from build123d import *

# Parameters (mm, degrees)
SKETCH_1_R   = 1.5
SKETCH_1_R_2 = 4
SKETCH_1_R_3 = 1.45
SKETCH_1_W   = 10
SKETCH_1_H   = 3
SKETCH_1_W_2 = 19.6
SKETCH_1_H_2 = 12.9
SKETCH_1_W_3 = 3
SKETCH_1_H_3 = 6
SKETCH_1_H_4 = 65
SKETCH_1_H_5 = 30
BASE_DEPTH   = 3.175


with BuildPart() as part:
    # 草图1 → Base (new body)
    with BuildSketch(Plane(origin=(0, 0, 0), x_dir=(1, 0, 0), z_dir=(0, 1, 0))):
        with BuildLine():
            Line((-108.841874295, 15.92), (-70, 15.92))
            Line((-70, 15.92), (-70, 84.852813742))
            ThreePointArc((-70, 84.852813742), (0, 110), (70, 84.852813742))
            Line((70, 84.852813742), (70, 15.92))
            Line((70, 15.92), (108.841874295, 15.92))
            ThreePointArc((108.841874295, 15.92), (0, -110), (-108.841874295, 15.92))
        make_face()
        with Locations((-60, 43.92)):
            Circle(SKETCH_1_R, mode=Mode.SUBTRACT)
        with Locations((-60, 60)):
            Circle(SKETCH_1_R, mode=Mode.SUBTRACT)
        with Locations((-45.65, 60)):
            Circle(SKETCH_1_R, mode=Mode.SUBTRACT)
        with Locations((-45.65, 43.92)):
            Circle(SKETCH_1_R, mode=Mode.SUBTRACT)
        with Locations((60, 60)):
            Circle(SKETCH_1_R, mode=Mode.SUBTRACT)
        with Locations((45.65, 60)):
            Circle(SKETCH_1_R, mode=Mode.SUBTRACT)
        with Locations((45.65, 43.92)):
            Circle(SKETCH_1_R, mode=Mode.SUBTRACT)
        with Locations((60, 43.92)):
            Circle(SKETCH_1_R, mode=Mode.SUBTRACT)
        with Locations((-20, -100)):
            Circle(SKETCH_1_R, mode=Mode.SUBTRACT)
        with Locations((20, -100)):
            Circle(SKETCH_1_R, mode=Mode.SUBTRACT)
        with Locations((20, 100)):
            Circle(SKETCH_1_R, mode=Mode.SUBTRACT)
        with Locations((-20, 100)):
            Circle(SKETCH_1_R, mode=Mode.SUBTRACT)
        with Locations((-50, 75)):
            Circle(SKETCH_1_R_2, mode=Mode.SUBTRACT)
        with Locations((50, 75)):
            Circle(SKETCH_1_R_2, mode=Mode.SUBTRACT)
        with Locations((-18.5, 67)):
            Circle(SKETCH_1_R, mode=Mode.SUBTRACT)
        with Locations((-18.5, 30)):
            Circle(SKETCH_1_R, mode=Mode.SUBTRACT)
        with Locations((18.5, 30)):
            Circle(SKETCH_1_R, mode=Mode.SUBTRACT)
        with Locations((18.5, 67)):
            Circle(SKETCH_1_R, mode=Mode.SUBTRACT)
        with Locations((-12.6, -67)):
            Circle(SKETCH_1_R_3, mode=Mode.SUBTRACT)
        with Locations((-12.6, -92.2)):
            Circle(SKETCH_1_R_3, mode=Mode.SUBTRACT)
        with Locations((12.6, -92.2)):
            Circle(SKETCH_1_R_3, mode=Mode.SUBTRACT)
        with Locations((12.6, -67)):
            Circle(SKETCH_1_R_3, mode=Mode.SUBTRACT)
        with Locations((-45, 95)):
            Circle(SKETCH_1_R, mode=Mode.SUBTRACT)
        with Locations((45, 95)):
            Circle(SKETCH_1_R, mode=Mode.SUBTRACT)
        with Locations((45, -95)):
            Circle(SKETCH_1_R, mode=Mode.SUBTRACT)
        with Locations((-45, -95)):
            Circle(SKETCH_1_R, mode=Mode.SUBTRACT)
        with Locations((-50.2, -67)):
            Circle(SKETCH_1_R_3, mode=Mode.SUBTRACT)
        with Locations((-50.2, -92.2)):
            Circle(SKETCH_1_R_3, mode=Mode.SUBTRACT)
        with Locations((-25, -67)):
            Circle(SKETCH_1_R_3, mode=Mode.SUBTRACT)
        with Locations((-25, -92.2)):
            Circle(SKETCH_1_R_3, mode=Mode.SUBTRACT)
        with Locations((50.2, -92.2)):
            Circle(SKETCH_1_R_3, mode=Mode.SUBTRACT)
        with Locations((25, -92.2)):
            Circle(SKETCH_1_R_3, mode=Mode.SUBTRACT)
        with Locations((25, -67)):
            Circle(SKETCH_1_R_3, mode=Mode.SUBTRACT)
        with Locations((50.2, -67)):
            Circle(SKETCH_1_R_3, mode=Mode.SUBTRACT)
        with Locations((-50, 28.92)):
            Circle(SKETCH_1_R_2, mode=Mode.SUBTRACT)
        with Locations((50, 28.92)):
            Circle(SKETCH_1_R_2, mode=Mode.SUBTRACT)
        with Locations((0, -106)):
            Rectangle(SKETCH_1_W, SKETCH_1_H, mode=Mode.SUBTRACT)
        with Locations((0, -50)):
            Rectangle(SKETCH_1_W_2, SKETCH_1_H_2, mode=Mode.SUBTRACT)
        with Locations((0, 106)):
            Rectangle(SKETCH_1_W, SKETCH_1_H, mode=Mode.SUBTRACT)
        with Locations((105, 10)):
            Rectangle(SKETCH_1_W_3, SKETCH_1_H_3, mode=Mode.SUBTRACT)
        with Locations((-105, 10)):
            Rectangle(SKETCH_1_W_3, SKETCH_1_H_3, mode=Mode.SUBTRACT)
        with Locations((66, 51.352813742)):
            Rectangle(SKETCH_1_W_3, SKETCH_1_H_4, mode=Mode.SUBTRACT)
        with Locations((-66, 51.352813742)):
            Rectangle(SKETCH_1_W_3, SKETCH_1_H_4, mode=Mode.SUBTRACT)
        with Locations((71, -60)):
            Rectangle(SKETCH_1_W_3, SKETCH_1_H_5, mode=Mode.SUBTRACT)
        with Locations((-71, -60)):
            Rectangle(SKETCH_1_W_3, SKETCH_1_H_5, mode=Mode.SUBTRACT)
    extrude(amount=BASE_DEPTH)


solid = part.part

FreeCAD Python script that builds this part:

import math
import FreeCAD as App
import Part
import Sketcher
from FreeCAD import Vector

doc = App.newDocument("Part")
body = doc.addObject("PartDesign::Body", "Body")

# Sketch on XZ plane
sketch1 = doc.addObject("Sketcher::SketchObject", "Sketch")
body.addObject(sketch1)
sketch1.AttachmentSupport = (doc.XZ_Plane, [""])
sketch1.MapMode = "FlatFace"
sketch1.addGeometry([
    Part.LineSegment(Vector(-70, -15.9, 0), Vector(-108.8, -15.9, 0)),  # 0
    Part.ArcOfCircle(Part.Circle(Vector(0, 0, 0), Vector(0, 0, 1), 110), math.radians(-8), math.radians(188)),  # 1
    Part.LineSegment(Vector(108.8, -15.9, 0), Vector(70, -15.9, 0)),  # 2
    Part.LineSegment(Vector(70, -15.9, 0), Vector(70, -84.9, 0)),  # 3
    Part.ArcOfCircle(Part.Circle(Vector(0, 0, 0), Vector(0, 0, 1), 110), math.radians(-130), math.radians(-50)),  # 4
    Part.LineSegment(Vector(-70, -84.9, 0), Vector(-70, -15.9, 0)),  # 5
    Part.LineSegment(Vector(69.5, 75, 0), Vector(69.5, 45, 0)),  # 6
    Part.LineSegment(Vector(69.5, 45, 0), Vector(72.5, 45, 0)),  # 7
    Part.LineSegment(Vector(72.5, 45, 0), Vector(72.5, 75, 0)),  # 8
    Part.LineSegment(Vector(72.5, 75, 0), Vector(69.5, 75, 0)),  # 9
    Part.Circle(Vector(45, 95, 0), Vector(0, 0, 1), 1.5),  # 10
    Part.Circle(Vector(50.2, 92.2, 0), Vector(0, 0, 1), 1.4),  # 11
    Part.Circle(Vector(20, 100, 0), Vector(0, 0, 1), 1.5),  # 12
    Part.Circle(Vector(25, 92.2, 0), Vector(0, 0, 1), 1.4),  # 13
    Part.Circle(Vector(12.6, 92.2, 0), Vector(0, 0, 1), 1.4),  # 14
    Part.Circle(Vector(50.2, 67, 0), Vector(0, 0, 1), 1.4),  # 15
    Part.Circle(Vector(25, 67, 0), Vector(0, 0, 1), 1.4),  # 16
    Part.Circle(Vector(12.6, 67, 0), Vector(0, 0, 1), 1.4),  # 17
    Part.LineSegment(Vector(-5, 107.5, 0), Vector(-5, 104.5, 0)),  # 18
    Part.LineSegment(Vector(-5, 104.5, 0), Vector(5, 104.5, 0)),  # 19
    Part.LineSegment(Vector(5, 104.5, 0), Vector(5, 107.5, 0)),  # 20
    Part.LineSegment(Vector(5, 107.5, 0), Vector(-5, 107.5, 0)),  # 21
    Part.Circle(Vector(-20, 100, 0), Vector(0, 0, 1), 1.5),  # 22
    Part.Circle(Vector(-12.6, 92.2, 0), Vector(0, 0, 1), 1.4),  # 23
    Part.Circle(Vector(-25, 92.2, 0), Vector(0, 0, 1), 1.4),  # 24
    Part.Circle(Vector(-45, 95, 0), Vector(0, 0, 1), 1.5),  # 25
    Part.Circle(Vector(-50.2, 92.2, 0), Vector(0, 0, 1), 1.4),  # 26
    Part.Circle(Vector(-12.6, 67, 0), Vector(0, 0, 1), 1.4),  # 27
    Part.Circle(Vector(-25, 67, 0), Vector(0, 0, 1), 1.4),  # 28
    Part.Circle(Vector(-50.2, 67, 0), Vector(0, 0, 1), 1.4),  # 29
    Part.LineSegment(Vector(-72.5, 75, 0), Vector(-72.5, 45, 0)),  # 30
    Part.LineSegment(Vector(-72.5, 45, 0), Vector(-69.5, 45, 0)),  # 31
    Part.LineSegment(Vector(-69.5, 45, 0), Vector(-69.5, 75, 0)),  # 32
    Part.LineSegment(Vector(-69.5, 75, 0), Vector(-72.5, 75, 0)),  # 33
    Part.LineSegment(Vector(-9.8, 56.5, 0), Vector(-9.8, 43.5, 0)),  # 34
    Part.LineSegment(Vector(-9.8, 43.5, 0), Vector(9.8, 43.5, 0)),  # 35
    Part.LineSegment(Vector(9.8, 43.5, 0), Vector(9.8, 56.5, 0)),  # 36
    Part.LineSegment(Vector(9.8, 56.5, 0), Vector(-9.8, 56.5, 0)),  # 37
    Part.LineSegment(Vector(103.5, -7, 0), Vector(103.5, -13, 0)),  # 38
    Part.LineSegment(Vector(103.5, -13, 0), Vector(106.5, -13, 0)),  # 39
    Part.LineSegment(Vector(106.5, -13, 0), Vector(106.5, -7, 0)),  # 40
    Part.LineSegment(Vector(106.5, -7, 0), Vector(103.5, -7, 0)),  # 41
    Part.Circle(Vector(60, -43.9, 0), Vector(0, 0, 1), 1.5),  # 42
    Part.LineSegment(Vector(64.5, -18.9, 0), Vector(64.5, -83.9, 0)),  # 43
    Part.LineSegment(Vector(64.5, -83.9, 0), Vector(67.5, -83.9, 0)),  # 44
    Part.LineSegment(Vector(67.5, -83.9, 0), Vector(67.5, -18.9, 0)),  # 45
    Part.LineSegment(Vector(67.5, -18.9, 0), Vector(64.5, -18.9, 0)),  # 46
    Part.Circle(Vector(50, -28.9, 0), Vector(0, 0, 1), 4),  # 47
    Part.Circle(Vector(45.6, -43.9, 0), Vector(0, 0, 1), 1.5),  # 48
    Part.Circle(Vector(18.5, -30, 0), Vector(0, 0, 1), 1.5),  # 49
    Part.Circle(Vector(60, -60, 0), Vector(0, 0, 1), 1.5),  # 50
    Part.Circle(Vector(45.6, -60, 0), Vector(0, 0, 1), 1.5),  # 51
    Part.Circle(Vector(50, -75, 0), Vector(0, 0, 1), 4),  # 52
    Part.Circle(Vector(18.5, -67, 0), Vector(0, 0, 1), 1.5),  # 53
    Part.Circle(Vector(45, -95, 0), Vector(0, 0, 1), 1.5),  # 54
    Part.Circle(Vector(20, -100, 0), Vector(0, 0, 1), 1.5),  # 55
    Part.Circle(Vector(-18.5, -30, 0), Vector(0, 0, 1), 1.5),  # 56
    Part.Circle(Vector(-50, -28.9, 0), Vector(0, 0, 1), 4),  # 57
    Part.Circle(Vector(-45.6, -43.9, 0), Vector(0, 0, 1), 1.5),  # 58
    Part.LineSegment(Vector(-106.5, -7, 0), Vector(-106.5, -13, 0)),  # 59
    Part.LineSegment(Vector(-106.5, -13, 0), Vector(-103.5, -13, 0)),  # 60
    Part.LineSegment(Vector(-103.5, -13, 0), Vector(-103.5, -7, 0)),  # 61
    Part.LineSegment(Vector(-103.5, -7, 0), Vector(-106.5, -7, 0)),  # 62
    Part.Circle(Vector(-60, -43.9, 0), Vector(0, 0, 1), 1.5),  # 63
    Part.LineSegment(Vector(-67.5, -18.9, 0), Vector(-67.5, -83.9, 0)),  # 64
    Part.LineSegment(Vector(-67.5, -83.9, 0), Vector(-64.5, -83.9, 0)),  # 65
    Part.LineSegment(Vector(-64.5, -83.9, 0), Vector(-64.5, -18.9, 0)),  # 66
    Part.LineSegment(Vector(-64.5, -18.9, 0), Vector(-67.5, -18.9, 0)),  # 67
    Part.Circle(Vector(-18.5, -67, 0), Vector(0, 0, 1), 1.5),  # 68
    Part.Circle(Vector(-45.6, -60, 0), Vector(0, 0, 1), 1.5),  # 69
    Part.Circle(Vector(-50, -75, 0), Vector(0, 0, 1), 4),  # 70
    Part.LineSegment(Vector(-5, -104.5, 0), Vector(-5, -107.5, 0)),  # 71
    Part.LineSegment(Vector(-5, -107.5, 0), Vector(5, -107.5, 0)),  # 72
    Part.LineSegment(Vector(5, -107.5, 0), Vector(5, -104.5, 0)),  # 73
    Part.LineSegment(Vector(5, -104.5, 0), Vector(-5, -104.5, 0)),  # 74
    Part.Circle(Vector(-20, -100, 0), Vector(0, 0, 1), 1.5),  # 75
    Part.Circle(Vector(-45, -95, 0), Vector(0, 0, 1), 1.5),  # 76
    Part.Circle(Vector(-60, -60, 0), Vector(0, 0, 1), 1.5),  # 77
], False)
sketch1.addConstraint([
    Sketcher.Constraint("Coincident", 0, 2, 1, 2),
    Sketcher.Constraint("Coincident", 1, 1, 2, 1),
    Sketcher.Constraint("Coincident", 2, 2, 3, 1),
    Sketcher.Constraint("Coincident", 3, 2, 4, 2),
    Sketcher.Constraint("Coincident", 4, 1, 5, 1),
    Sketcher.Constraint("Coincident", 5, 2, 0, 1),
    Sketcher.Constraint("Coincident", 6, 2, 7, 1),
    Sketcher.Constraint("Coincident", 7, 2, 8, 1),
    Sketcher.Constraint("Coincident", 8, 2, 9, 1),
    Sketcher.Constraint("Coincident", 9, 2, 6, 1),
    Sketcher.Constraint("Coincident", 18, 2, 19, 1),
    Sketcher.Constraint("Coincident", 19, 2, 20, 1),
    Sketcher.Constraint("Coincident", 20, 2, 21, 1),
    Sketcher.Constraint("Coincident", 21, 2, 18, 1),
    Sketcher.Constraint("Coincident", 30, 2, 31, 1),
    Sketcher.Constraint("Coincident", 31, 2, 32, 1),
    Sketcher.Constraint("Coincident", 32, 2, 33, 1),
    Sketcher.Constraint("Coincident", 33, 2, 30, 1),
    Sketcher.Constraint("Coincident", 34, 2, 35, 1),
    Sketcher.Constraint("Coincident", 35, 2, 36, 1),
    Sketcher.Constraint("Coincident", 36, 2, 37, 1),
    Sketcher.Constraint("Coincident", 37, 2, 34, 1),
    Sketcher.Constraint("Coincident", 38, 2, 39, 1),
    Sketcher.Constraint("Coincident", 39, 2, 40, 1),
    Sketcher.Constraint("Coincident", 40, 2, 41, 1),
    Sketcher.Constraint("Coincident", 41, 2, 38, 1),
    Sketcher.Constraint("Coincident", 43, 2, 44, 1),
    Sketcher.Constraint("Coincident", 44, 2, 45, 1),
    Sketcher.Constraint("Coincident", 45, 2, 46, 1),
    Sketcher.Constraint("Coincident", 46, 2, 43, 1),
    Sketcher.Constraint("Coincident", 59, 2, 60, 1),
    Sketcher.Constraint("Coincident", 60, 2, 61, 1),
    Sketcher.Constraint("Coincident", 61, 2, 62, 1),
    Sketcher.Constraint("Coincident", 62, 2, 59, 1),
    Sketcher.Constraint("Coincident", 64, 2, 65, 1),
    Sketcher.Constraint("Coincident", 65, 2, 66, 1),
    Sketcher.Constraint("Coincident", 66, 2, 67, 1),
    Sketcher.Constraint("Coincident", 67, 2, 64, 1),
    Sketcher.Constraint("Coincident", 71, 2, 72, 1),
    Sketcher.Constraint("Coincident", 72, 2, 73, 1),
    Sketcher.Constraint("Coincident", 73, 2, 74, 1),
    Sketcher.Constraint("Coincident", 74, 2, 71, 1),
    Sketcher.Constraint("Horizontal", 0),
    Sketcher.Constraint("Horizontal", 2),
    Sketcher.Constraint("Vertical", 3),
    Sketcher.Constraint("Vertical", 5),
    Sketcher.Constraint("Vertical", 6),
    Sketcher.Constraint("Horizontal", 7),
    Sketcher.Constraint("Vertical", 8),
    Sketcher.Constraint("Horizontal", 9),
    Sketcher.Constraint("Vertical", 18),
    Sketcher.Constraint("Horizontal", 19),
    Sketcher.Constraint("Vertical", 20),
    Sketcher.Constraint("Horizontal", 21),
    Sketcher.Constraint("Vertical", 30),
    Sketcher.Constraint("Horizontal", 31),
    Sketcher.Constraint("Vertical", 32),
    Sketcher.Constraint("Horizontal", 33),
    Sketcher.Constraint("Vertical", 34),
    Sketcher.Constraint("Horizontal", 35),
    Sketcher.Constraint("Vertical", 36),
    Sketcher.Constraint("Horizontal", 37),
    Sketcher.Constraint("Vertical", 38),
    Sketcher.Constraint("Horizontal", 39),
    Sketcher.Constraint("Vertical", 40),
    Sketcher.Constraint("Horizontal", 41),
    Sketcher.Constraint("Vertical", 43),
    Sketcher.Constraint("Horizontal", 44),
    Sketcher.Constraint("Vertical", 45),
    Sketcher.Constraint("Horizontal", 46),
    Sketcher.Constraint("Vertical", 59),
    Sketcher.Constraint("Horizontal", 60),
    Sketcher.Constraint("Vertical", 61),
    Sketcher.Constraint("Horizontal", 62),
    Sketcher.Constraint("Vertical", 64),
    Sketcher.Constraint("Horizontal", 65),
    Sketcher.Constraint("Vertical", 66),
    Sketcher.Constraint("Horizontal", 67),
    Sketcher.Constraint("Vertical", 71),
    Sketcher.Constraint("Horizontal", 72),
    Sketcher.Constraint("Vertical", 73),
    Sketcher.Constraint("Horizontal", 74),
    Sketcher.Constraint("Coincident", 1, 3, -1, 1),
    Sketcher.Constraint("Coincident", 4, 3, -1, 1),
    Sketcher.Constraint("Equal", 1, 4),
    Sketcher.Constraint("Equal", 10, 12),
    Sketcher.Constraint("Equal", 11, 13),
    Sketcher.Constraint("Equal", 13, 14),
    Sketcher.Constraint("Equal", 14, 15),
    Sketcher.Constraint("Equal", 15, 16),
    Sketcher.Constraint("Equal", 16, 17),
    Sketcher.Constraint("Equal", 12, 22),
    Sketcher.Constraint("Equal", 17, 23),
    Sketcher.Constraint("Equal", 23, 24),
    Sketcher.Constraint("Equal", 22, 25),
    Sketcher.Constraint("Equal", 24, 26),
    Sketcher.Constraint("Equal", 26, 27),
    Sketcher.Constraint("Equal", 27, 28),
    Sketcher.Constraint("Equal", 28, 29),
    Sketcher.Constraint("Equal", 25, 42),
    Sketcher.Constraint("Equal", 42, 48),
    Sketcher.Constraint("Equal", 48, 49),
    Sketcher.Constraint("Equal", 49, 50),
    Sketcher.Constraint("Equal", 50, 51),
    Sketcher.Constraint("Equal", 47, 52),
    Sketcher.Constraint("Equal", 51, 53),
    Sketcher.Constraint("Equal", 53, 54),
    Sketcher.Constraint("Equal", 54, 55),
    Sketcher.Constraint("Equal", 55, 56),
    Sketcher.Constraint("Equal", 52, 57),
    Sketcher.Constraint("Equal", 56, 58),
    Sketcher.Constraint("Equal", 58, 63),
    Sketcher.Constraint("Equal", 63, 68),
    Sketcher.Constraint("Equal", 68, 69),
    Sketcher.Constraint("Equal", 57, 70),
    Sketcher.Constraint("Equal", 69, 75),
    Sketcher.Constraint("Equal", 75, 76),
    Sketcher.Constraint("Equal", 76, 77),
    Sketcher.Constraint("Symmetric", 25, 3, 54, 3, -1, 1),
    Sketcher.Constraint("Symmetric", 22, 3, 55, 3, -1, 1),
    Sketcher.Constraint("Symmetric", 12, 3, 75, 3, -1, 1),
    Sketcher.Constraint("Symmetric", 10, 3, 76, 3, -1, 1),
    Sketcher.Constraint("Symmetric", 20, 2, 71, 2, -1, 1),
    Sketcher.Constraint("Symmetric", 18, 2, 73, 2, -1, 1),
    Sketcher.Constraint("Symmetric", 12, 3, 22, 3, -2),
    Sketcher.Constraint("Symmetric", 14, 3, 23, 3, -2),
    Sketcher.Constraint("Symmetric", 13, 3, 24, 3, -2),
    Sketcher.Constraint("Symmetric", 10, 3, 25, 3, -2),
    Sketcher.Constraint("Symmetric", 11, 3, 26, 3, -2),
    Sketcher.Constraint("Symmetric", 17, 3, 27, 3, -2),
    Sketcher.Constraint("Symmetric", 16, 3, 28, 3, -2),
    Sketcher.Constraint("Symmetric", 15, 3, 29, 3, -2),
    Sketcher.Constraint("Symmetric", 49, 3, 56, 3, -2),
    Sketcher.Constraint("Symmetric", 47, 3, 57, 3, -2),
    Sketcher.Constraint("Symmetric", 48, 3, 58, 3, -2),
    Sketcher.Constraint("Symmetric", 42, 3, 63, 3, -2),
    Sketcher.Constraint("Symmetric", 53, 3, 68, 3, -2),
    Sketcher.Constraint("Symmetric", 51, 3, 69, 3, -2),
    Sketcher.Constraint("Symmetric", 52, 3, 70, 3, -2),
    Sketcher.Constraint("Symmetric", 50, 3, 77, 3, -2),
    Sketcher.Constraint("Symmetric", 2, 2, 5, 2, -2),
    Sketcher.Constraint("Symmetric", 7, 2, 30, 2, -2),
    Sketcher.Constraint("Symmetric", 9, 2, 32, 2, -2),
    Sketcher.Constraint("Symmetric", 39, 2, 59, 2, -2),
    Sketcher.Constraint("Symmetric", 41, 2, 61, 2, -2),
    Sketcher.Constraint("Symmetric", 44, 2, 64, 2, -2),
    Sketcher.Constraint("Symmetric", 46, 2, 66, 2, -2),
    Sketcher.Constraint("Horizontal", 11, 3, 13, 3),
    Sketcher.Constraint("Horizontal", 13, 3, 14, 3),
    Sketcher.Constraint("Horizontal", 15, 3, 16, 3),
    Sketcher.Constraint("Horizontal", 16, 3, 17, 3),
    Sketcher.Constraint("Horizontal", 42, 3, 48, 3),
    Sketcher.Constraint("Horizontal", 50, 3, 51, 3),
    Sketcher.Constraint("Vertical", 11, 3, 15, 3),
    Sketcher.Constraint("Vertical", 13, 3, 16, 3),
    Sketcher.Constraint("Vertical", 14, 3, 17, 3),
    Sketcher.Constraint("Vertical", 42, 3, 50, 3),
    Sketcher.Constraint("Vertical", 48, 3, 51, 3),
    Sketcher.Constraint("Vertical", 47, 3, 52, 3),
    Sketcher.Constraint("Vertical", 49, 3, 53, 3),
    Sketcher.Constraint("Vertical", 21, 2, 71, 2),
    Sketcher.Constraint("Equal", 33, 39),
    Sketcher.Constraint("Equal", 41, 44),
    Sketcher.Constraint("Equal", 67, 18),
    Sketcher.Constraint("Diameter", 10, 3.0),
    Sketcher.Constraint("Diameter", 47, 8.0),
    Sketcher.Constraint("Radius", 1, 110.0),
    Sketcher.Constraint("Diameter", 11, 2.9),
    Sketcher.Constraint("DistanceX", 7, 1, 7, 2, 3.0),
    Sketcher.Constraint("DistanceX", 19, 1, 19, 2, 10.0),
    Sketcher.Constraint("DistanceY", 6, 2, 6, 1, 30.0),
    Sketcher.Constraint("DistanceY", 38, 2, 38, 1, 6.0),
    Sketcher.Constraint("DistanceY", 43, 2, 43, 1, 65.0),
    Sketcher.Constraint("DistanceX", 35, 1, 35, 2, 19.6),
    Sketcher.Constraint("DistanceY", 34, 2, 34, 1, 12.9),
    Sketcher.Constraint("DistanceX", -1, 1, 10, 3, 45.0),
    Sketcher.Constraint("DistanceY", -1, 1, 10, 3, 95.0),
    Sketcher.Constraint("DistanceX", -1, 1, 12, 3, 20.0),
    Sketcher.Constraint("DistanceY", -1, 1, 12, 3, 100.0),
    Sketcher.Constraint("DistanceX", -1, 1, 13, 3, 25.0),
    Sketcher.Constraint("DistanceY", -1, 1, 15, 3, 67.0),
    Sketcher.Constraint("DistanceX", -1, 1, 42, 3, 60.0),
    Sketcher.Constraint("DistanceX", -1, 1, 47, 3, 50.0),
    Sketcher.Constraint("DistanceY", 49, 3, -1, 1, 30.0),
    Sketcher.Constraint("DistanceY", 50, 3, -1, 1, 60.0),
    Sketcher.Constraint("DistanceY", 52, 3, -1, 1, 75.0),
    Sketcher.Constraint("DistanceY", 53, 3, -1, 1, 67.0),
    Sketcher.Constraint("DistanceX", -1, 1, 2, 2, 70.0),
    Sketcher.Constraint("DistanceY", -1, 1, 6, 2, 45.0),
    Sketcher.Constraint("DistanceY", 38, 2, -1, 1, 13.0),
    Sketcher.Constraint("DistanceX", -1, 1, 11, 3, 50.2),
    Sketcher.Constraint("DistanceY", -1, 1, 11, 3, 92.2),
    Sketcher.Constraint("DistanceX", -1, 1, 14, 3, 12.6),
    Sketcher.Constraint("DistanceX", -1, 1, 49, 3, 18.5),
    Sketcher.Constraint("DistanceX", -1, 1, 6, 2, 69.5),
    Sketcher.Constraint("DistanceY", -1, 1, 18, 2, 104.5),
    Sketcher.Constraint("DistanceX", 34, 2, -1, 1, 9.8),
    Sketcher.Constraint("DistanceX", -1, 1, 38, 2, 103.5),
    Sketcher.Constraint("DistanceX", -1, 1, 43, 2, 64.5),
    Sketcher.Constraint("DistanceY", 42, 3, -1, 1, 43.92),
    Sketcher.Constraint("DistanceY", 47, 3, -1, 1, 28.92),
    Sketcher.Constraint("DistanceX", -1, 1, 48, 3, 45.65),
    Sketcher.Constraint("DistanceY", 0, 2, -1, 1, 15.92),
    Sketcher.Constraint("DistanceY", -1, 1, 34, 2, 43.55),
    Sketcher.Constraint("DistanceY", 43, 2, -1, 1, 83.852814),
])
pad1 = doc.addObject("PartDesign::Pad", "Pad")
body.addObject(pad1)
pad1.Profile = sketch1
pad1.Length = 3.175
pad1.Reversed = True

doc.recompute()
